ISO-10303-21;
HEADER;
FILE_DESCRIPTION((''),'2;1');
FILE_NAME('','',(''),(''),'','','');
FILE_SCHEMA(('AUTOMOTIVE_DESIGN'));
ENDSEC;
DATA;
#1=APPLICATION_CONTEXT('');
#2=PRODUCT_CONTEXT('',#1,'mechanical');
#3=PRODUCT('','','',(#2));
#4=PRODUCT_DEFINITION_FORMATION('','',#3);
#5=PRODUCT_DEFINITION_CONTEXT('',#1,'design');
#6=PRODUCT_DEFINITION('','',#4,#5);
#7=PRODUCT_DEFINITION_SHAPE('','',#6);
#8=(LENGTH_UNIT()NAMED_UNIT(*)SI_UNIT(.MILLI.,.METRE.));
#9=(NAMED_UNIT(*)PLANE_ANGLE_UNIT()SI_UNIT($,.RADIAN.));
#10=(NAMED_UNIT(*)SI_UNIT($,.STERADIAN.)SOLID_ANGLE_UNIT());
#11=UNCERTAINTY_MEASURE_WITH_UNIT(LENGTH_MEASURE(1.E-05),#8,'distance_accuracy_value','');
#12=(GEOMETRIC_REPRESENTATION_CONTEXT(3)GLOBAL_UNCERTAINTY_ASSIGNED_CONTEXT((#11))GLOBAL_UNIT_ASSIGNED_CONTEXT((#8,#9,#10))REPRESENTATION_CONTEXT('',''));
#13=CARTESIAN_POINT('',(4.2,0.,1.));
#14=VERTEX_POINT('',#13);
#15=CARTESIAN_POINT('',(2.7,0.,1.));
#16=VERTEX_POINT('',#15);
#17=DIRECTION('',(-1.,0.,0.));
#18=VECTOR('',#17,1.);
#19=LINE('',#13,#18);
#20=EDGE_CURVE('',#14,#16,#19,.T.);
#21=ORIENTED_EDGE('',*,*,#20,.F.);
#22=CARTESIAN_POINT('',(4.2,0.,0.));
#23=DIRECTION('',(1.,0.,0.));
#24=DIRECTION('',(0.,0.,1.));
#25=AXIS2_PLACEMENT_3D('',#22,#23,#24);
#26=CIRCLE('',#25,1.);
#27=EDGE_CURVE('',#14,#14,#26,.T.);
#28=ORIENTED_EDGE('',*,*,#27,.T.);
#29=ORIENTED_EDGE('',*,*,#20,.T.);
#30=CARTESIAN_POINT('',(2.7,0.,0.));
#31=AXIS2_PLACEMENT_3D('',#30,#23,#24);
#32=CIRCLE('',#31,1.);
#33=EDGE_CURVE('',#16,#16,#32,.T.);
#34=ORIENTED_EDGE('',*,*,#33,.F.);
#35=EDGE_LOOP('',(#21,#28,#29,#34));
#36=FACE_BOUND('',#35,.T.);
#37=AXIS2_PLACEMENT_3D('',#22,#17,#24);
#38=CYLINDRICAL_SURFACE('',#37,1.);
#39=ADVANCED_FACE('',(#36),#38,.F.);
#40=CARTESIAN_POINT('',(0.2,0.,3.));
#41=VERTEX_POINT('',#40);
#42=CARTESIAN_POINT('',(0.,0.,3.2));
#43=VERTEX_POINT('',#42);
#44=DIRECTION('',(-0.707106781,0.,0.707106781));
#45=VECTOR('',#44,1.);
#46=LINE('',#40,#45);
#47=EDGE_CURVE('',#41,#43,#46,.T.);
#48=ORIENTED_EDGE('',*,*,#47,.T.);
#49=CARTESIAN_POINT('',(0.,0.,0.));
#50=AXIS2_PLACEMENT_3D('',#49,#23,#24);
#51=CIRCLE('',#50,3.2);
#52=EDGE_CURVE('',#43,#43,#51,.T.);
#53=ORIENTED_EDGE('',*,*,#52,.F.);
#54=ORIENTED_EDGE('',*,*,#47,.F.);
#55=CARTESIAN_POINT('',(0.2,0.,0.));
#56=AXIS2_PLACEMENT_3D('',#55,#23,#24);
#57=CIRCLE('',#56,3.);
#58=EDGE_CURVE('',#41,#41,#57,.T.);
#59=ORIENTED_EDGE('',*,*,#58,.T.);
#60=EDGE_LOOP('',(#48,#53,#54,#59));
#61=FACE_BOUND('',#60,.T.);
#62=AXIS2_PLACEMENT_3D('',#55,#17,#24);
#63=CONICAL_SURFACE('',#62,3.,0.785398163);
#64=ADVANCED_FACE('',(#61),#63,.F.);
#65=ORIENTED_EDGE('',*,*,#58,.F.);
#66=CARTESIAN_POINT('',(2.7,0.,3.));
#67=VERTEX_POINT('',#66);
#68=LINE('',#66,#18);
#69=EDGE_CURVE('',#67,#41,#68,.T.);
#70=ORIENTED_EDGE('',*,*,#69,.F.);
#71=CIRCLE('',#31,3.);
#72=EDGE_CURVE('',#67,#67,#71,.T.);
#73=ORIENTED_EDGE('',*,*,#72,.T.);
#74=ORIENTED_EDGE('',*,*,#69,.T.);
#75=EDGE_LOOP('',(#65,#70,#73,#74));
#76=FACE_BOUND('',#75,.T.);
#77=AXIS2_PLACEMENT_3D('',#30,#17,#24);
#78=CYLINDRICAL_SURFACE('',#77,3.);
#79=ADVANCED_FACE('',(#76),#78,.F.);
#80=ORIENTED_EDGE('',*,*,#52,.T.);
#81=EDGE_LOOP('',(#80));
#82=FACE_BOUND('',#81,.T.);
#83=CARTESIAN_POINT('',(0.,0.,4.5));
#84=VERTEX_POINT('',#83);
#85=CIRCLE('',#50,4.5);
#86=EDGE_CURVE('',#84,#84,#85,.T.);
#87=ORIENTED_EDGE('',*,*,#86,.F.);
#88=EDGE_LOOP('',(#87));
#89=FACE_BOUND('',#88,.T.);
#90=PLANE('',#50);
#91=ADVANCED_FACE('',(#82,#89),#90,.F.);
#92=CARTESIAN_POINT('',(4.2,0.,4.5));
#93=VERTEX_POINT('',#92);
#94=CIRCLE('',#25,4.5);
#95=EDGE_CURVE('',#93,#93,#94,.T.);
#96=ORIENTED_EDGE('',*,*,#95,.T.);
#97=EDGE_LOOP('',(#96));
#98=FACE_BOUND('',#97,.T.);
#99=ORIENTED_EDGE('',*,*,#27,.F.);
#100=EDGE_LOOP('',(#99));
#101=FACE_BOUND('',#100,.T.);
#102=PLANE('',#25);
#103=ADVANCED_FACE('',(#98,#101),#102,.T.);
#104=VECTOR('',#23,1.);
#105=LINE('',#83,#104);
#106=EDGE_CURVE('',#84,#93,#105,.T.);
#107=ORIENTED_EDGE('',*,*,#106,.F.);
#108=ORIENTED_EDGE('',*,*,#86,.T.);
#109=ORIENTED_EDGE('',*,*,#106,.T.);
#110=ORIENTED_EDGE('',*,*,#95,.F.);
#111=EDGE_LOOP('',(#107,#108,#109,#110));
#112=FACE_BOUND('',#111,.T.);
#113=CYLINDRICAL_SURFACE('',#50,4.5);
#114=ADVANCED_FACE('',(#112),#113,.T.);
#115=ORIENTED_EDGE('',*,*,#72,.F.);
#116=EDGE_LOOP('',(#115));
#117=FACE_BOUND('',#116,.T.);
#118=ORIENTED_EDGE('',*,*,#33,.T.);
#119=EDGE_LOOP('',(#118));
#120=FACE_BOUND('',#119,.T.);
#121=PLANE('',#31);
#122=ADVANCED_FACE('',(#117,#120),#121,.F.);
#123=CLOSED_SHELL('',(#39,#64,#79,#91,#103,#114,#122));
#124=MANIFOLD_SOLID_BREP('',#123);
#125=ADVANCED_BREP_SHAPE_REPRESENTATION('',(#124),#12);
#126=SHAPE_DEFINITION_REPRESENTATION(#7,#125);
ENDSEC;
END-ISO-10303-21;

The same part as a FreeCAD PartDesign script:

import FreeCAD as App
import Part
import Sketcher


def edges_at(feature, points):
    """Names of the edges that pass closest to the given points."""
    edges = feature.Shape.Edges
    near = lambda p: min(range(len(edges)), key=lambda i: edges[i].distToShape(Part.Vertex(*p))[0])
    return sorted({f"Edge{near(p) + 1}" for p in points})

doc = App.newDocument("Part")
params = doc.addObject("Spreadsheet::Sheet", "Params")
for row, (alias, value) in enumerate([
    ("sketch1_height", "2 mm"),
    ("sketch1_width", "4.2 mm"),
    ("sketch1_width2", "2.7 mm"),
    ("revolution_angle", "360 deg"),
    ("chamfer_size", "0.2 mm"),
], start=1):
    params.set(f"A{row}", alias)
    params.set(f"B{row}", "=" + value)
    params.setAlias(f"B{row}", alias)

body = doc.addObject("PartDesign::Body", "Body")

sketch1 = body.newObject("Sketcher::SketchObject", "Sketch")
sketch1.AttachmentSupport = (doc.getObject("XZ_Plane"), [""])
sketch1.MapMode = "FlatFace"
sketch1.addGeometry(Part.LineSegment(App.Vector(4.2, 4.5, 0), App.Vector(0, 4.5, 0)), False)
sketch1.addGeometry(Part.LineSegment(App.Vector(0, 4.5, 0), App.Vector(0, 3, 0)), False)
sketch1.addGeometry(Part.LineSegment(App.Vector(0, 3, 0), App.Vector(2.7, 3, 0)), False)
sketch1.addGeometry(Part.LineSegment(App.Vector(2.7, 3, 0), App.Vector(2.7, 1, 0)), False)
sketch1.addGeometry(Part.LineSegment(App.Vector(2.7, 1, 0), App.Vector(4.2, 1, 0)), False)
sketch1.addGeometry(Part.LineSegment(App.Vector(4.2, 1, 0), App.Vector(4.2, 4.5, 0)), False)
sketch1.addConstraint(Sketcher.Constraint("Coincident", 0, 2, 1, 1))
sketch1.addConstraint(Sketcher.Constraint("Coincident", 1, 2, 2, 1))
sketch1.addConstraint(Sketcher.Constraint("Coincident", 2, 2, 3, 1))
sketch1.addConstraint(Sketcher.Constraint("Coincident", 3, 2, 4, 1))
sketch1.addConstraint(Sketcher.Constraint("Coincident", 4, 2, 5, 1))
sketch1.addConstraint(Sketcher.Constraint("Coincident", 5, 2, 0, 1))
sketch1.addConstraint(Sketcher.Constraint("Horizontal", 0))
sketch1.addConstraint(Sketcher.Constraint("Vertical", 1))
sketch1.addConstraint(Sketcher.Constraint("Horizontal", 2))
sketch1.addConstraint(Sketcher.Constraint("Vertical", 3))
sketch1.addConstraint(Sketcher.Constraint("Horizontal", 4))
sketch1.addConstraint(Sketcher.Constraint("Vertical", 5))
sketch1.addConstraint(Sketcher.Constraint("PointOnObject", 0, 2, -2))
sketch1.addConstraint(Sketcher.Constraint("Equal", 4, 1))
sketch1.addConstraint(Sketcher.Constraint("DistanceY", 3, 2, 3, 1, 2.0))
sketch1.addConstraint(Sketcher.Constraint("DistanceX", 0, 2, 0, 1, 4.2))
sketch1.addConstraint(Sketcher.Constraint("DistanceX", 2, 1, 2, 2, 2.7))
sketch1.addConstraint(Sketcher.Constraint("DistanceY", -1, 1, 1, 2, 3.0))
sketch1.setExpression("Constraints[14]", "Params.sketch1_height")
sketch1.setExpression("Constraints[15]", "Params.sketch1_width")
sketch1.setExpression("Constraints[16]", "Params.sketch1_width2")
revolution = body.newObject("PartDesign::Revolution", "Revolution")
revolution.Profile = sketch1
revolution.ReferenceAxis = (sketch1, ["H_Axis"])
revolution.setExpression("Angle", "Params.revolution_angle")
doc.recompute()

chamfer = body.newObject("PartDesign::Chamfer", "Chamfer")
chamfer.Base = (revolution, edges_at(revolution, [(0, 0, -3)]))
chamfer.setExpression("Size", "Params.chamfer_size")

doc.recompute()
